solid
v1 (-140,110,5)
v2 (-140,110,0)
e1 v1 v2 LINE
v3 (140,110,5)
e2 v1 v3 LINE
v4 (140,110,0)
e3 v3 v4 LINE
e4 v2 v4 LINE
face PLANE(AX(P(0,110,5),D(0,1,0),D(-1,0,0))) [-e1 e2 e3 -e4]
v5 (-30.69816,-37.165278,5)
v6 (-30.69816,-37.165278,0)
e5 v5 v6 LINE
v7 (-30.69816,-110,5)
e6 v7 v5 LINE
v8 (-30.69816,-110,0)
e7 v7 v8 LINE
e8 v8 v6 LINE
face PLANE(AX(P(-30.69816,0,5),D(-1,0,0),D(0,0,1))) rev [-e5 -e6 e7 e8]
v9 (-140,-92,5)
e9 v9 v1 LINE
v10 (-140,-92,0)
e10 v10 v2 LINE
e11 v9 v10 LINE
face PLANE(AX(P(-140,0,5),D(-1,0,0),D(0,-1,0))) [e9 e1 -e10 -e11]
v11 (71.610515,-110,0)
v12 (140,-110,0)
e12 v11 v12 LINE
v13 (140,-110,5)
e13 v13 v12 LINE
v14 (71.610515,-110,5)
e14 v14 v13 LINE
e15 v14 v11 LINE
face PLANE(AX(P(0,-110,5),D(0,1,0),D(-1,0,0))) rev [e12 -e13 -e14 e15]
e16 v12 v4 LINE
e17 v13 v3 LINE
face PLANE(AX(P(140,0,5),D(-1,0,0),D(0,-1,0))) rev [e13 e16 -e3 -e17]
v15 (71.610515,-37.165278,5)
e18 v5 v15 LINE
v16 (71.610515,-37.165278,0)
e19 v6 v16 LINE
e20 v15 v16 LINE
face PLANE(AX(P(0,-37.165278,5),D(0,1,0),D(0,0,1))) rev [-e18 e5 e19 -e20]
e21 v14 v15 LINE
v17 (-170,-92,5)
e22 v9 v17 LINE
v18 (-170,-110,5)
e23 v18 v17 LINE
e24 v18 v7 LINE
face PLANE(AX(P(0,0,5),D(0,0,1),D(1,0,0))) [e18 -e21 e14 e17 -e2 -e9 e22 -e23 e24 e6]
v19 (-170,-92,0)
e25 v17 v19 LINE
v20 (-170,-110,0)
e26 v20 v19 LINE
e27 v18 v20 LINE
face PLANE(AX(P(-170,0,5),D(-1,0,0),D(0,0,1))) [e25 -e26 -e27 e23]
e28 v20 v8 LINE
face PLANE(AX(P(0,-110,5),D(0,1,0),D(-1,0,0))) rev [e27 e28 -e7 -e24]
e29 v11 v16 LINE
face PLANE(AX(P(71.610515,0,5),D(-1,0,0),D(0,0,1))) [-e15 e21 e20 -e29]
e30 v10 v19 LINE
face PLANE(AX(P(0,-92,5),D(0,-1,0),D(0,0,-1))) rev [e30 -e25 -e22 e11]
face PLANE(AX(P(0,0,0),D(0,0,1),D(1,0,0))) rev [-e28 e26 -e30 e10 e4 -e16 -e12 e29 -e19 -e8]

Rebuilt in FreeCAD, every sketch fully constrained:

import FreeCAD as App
import Part
import Sketcher

V = App.Vector

doc = App.newDocument("Part")
params = doc.addObject("Spreadsheet::Sheet", "Params")
for row, (alias, value) in enumerate([
    ("sketch1_width", "30 mm"),
    ("sketch1_width2", "280 mm"),
    ("sketch1_height", "202 mm"),
    ("sketch1_height2", "18 mm"),
    ("pad1_length", "5 mm"),
], start=1):
    params.set(f"A{row}", alias)
    params.set(f"B{row}", "=" + value)
    params.setAlias(f"B{row}", alias)

body = doc.addObject("PartDesign::Body", "Body")

sketch1 = body.newObject("Sketcher::SketchObject", "Sketch")
sketch1.AttachmentSupport = (doc.getObject("XY_Plane"), [""])
sketch1.MapMode = "FlatFace"
sketch1.addGeometry(Part.LineSegment(V(-140, 110, 0), V(-140, -92, 0)), False)
sketch1.addGeometry(Part.LineSegment(V(-140, -92, 0), V(-170, -92, 0)), False)
sketch1.addGeometry(Part.LineSegment(V(-170, -92, 0), V(-170, -110, 0)), False)
sketch1.addGeometry(Part.LineSegment(V(-170, -110, 0), V(-31, -110, 0)), False)
sketch1.addGeometry(Part.LineSegment(V(-31, -110, 0), V(-31, -37, 0)), False)
sketch1.addGeometry(Part.LineSegment(V(-31, -37, 0), V(72, -37, 0)), False)
sketch1.addGeometry(Part.LineSegment(V(72, -37, 0), V(72, -110, 0)), False)
sketch1.addGeometry(Part.LineSegment(V(72, -110, 0), V(140, -110, 0)), False)
sketch1.addGeometry(Part.LineSegment(V(140, -110, 0), V(140, 110, 0)), False)
sketch1.addGeometry(Part.LineSegment(V(140, 110, 0), V(-140, 110, 0)), False)
sketch1.addConstraint(Sketcher.Constraint("Coincident", 0, 2, 1, 1))
sketch1.addConstraint(Sketcher.Constraint("Coincident", 1, 2, 2, 1))
sketch1.addConstraint(Sketcher.Constraint("Coincident", 2, 2, 3, 1))
sketch1.addConstraint(Sketcher.Constraint("Coincident", 3, 2, 4, 1))
sketch1.addConstraint(Sketcher.Constraint("Coincident", 4, 2, 5, 1))
sketch1.addConstraint(Sketcher.Constraint("Coincident", 5, 2, 6, 1))
sketch1.addConstraint(Sketcher.Constraint("Coincident", 6, 2, 7, 1))
sketch1.addConstraint(Sketcher.Constraint("Coincident", 7, 2, 8, 1))
sketch1.addConstraint(Sketcher.Constraint("Coincident", 8, 2, 9, 1))
sketch1.addConstraint(Sketcher.Constraint("Coincident", 9, 2, 0, 1))
sketch1.addConstraint(Sketcher.Constraint("Vertical", 0))
sketch1.addConstraint(Sketcher.Constraint("Horizontal", 1))
sketch1.addConstraint(Sketcher.Constraint("Vertical", 2))
sketch1.addConstraint(Sketcher.Constraint("Horizontal", 3))
sketch1.addConstraint(Sketcher.Constraint("Vertical", 4))
sketch1.addConstraint(Sketcher.Constraint("Horizontal", 5))
sketch1.addConstraint(Sketcher.Constraint("Vertical", 6))
sketch1.addConstraint(Sketcher.Constraint("Horizontal", 7))
sketch1.addConstraint(Sketcher.Constraint("Vertical", 8))
sketch1.addConstraint(Sketcher.Constraint("Horizontal", 9))
sketch1.addConstraint(Sketcher.Constraint("Symmetric", 7, 2, 9, 2, -1, 1))
sketch1.addConstraint(Sketcher.Constraint("Horizontal", 3, 2, 6, 2))
sketch1.addConstraint(Sketcher.Constraint("DistanceX", 1, 2, 1, 1, 30.0))
sketch1.addConstraint(Sketcher.Constraint("DistanceX", 9, 2, 9, 1, 280.0))
sketch1.addConstraint(Sketcher.Constraint("DistanceY", 0, 2, 0, 1, 202.0))
sketch1.addConstraint(Sketcher.Constraint("DistanceY", 2, 2, 2, 1, 18.0))
sketch1.addConstraint(Sketcher.Constraint("DistanceX", 3, 1, 3, 2, 139.30184))
sketch1.addConstraint(Sketcher.Constraint("DistanceY", 4, 1, 4, 2, 72.834722))
sketch1.addConstraint(Sketcher.Constraint("DistanceX", 5, 1, 5, 2, 102.308675))
sketch1.setExpression("Constraints[22]", "Params.sketch1_width")
sketch1.setExpression("Constraints[23]", "Params.sketch1_width2")
sketch1.setExpression("Constraints[24]", "Params.sketch1_height")
sketch1.setExpression("Constraints[25]", "Params.sketch1_height2")
pad1 = body.newObject("PartDesign::Pad", "Pad")
pad1.Profile = sketch1
pad1.setExpression("Length", "Params.pad1_length")

doc.recompute()
